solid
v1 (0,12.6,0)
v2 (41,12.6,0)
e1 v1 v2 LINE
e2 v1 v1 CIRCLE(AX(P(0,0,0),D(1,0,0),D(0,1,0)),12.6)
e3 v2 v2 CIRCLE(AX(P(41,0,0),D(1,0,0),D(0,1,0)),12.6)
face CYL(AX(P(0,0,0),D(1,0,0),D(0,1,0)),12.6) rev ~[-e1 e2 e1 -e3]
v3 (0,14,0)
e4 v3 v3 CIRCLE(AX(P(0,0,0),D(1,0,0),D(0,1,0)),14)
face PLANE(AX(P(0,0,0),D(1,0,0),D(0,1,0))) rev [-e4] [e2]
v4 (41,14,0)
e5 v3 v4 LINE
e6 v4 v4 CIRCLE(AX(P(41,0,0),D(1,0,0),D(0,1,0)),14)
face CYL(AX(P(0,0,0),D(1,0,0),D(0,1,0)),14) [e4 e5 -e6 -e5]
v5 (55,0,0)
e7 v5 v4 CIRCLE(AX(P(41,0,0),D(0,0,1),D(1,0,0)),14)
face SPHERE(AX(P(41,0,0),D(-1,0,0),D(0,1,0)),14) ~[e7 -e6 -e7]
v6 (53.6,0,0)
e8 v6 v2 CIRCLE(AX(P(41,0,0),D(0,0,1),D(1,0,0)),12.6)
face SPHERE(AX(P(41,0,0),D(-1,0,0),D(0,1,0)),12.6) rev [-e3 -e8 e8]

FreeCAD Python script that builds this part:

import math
import FreeCAD as App
import Part
import Sketcher

V = App.Vector
Q = App.Units.Quantity

doc = App.newDocument("Part")
params = doc.addObject("Spreadsheet::Sheet", "Params")
for row, (alias, value) in enumerate([
    ("sketch1_radius", "14 mm"),
    ("sketch1_width", "1.4 mm"),
    ("revolution_angle", "360 deg"),
], start=1):
    params.set(f"A{row}", alias)
    params.set(f"B{row}", "=" + value)
    params.setAlias(f"B{row}", alias)

body = doc.addObject("PartDesign::Body", "Body")

# Sketch on XY plane
sketch1 = body.newObject("Sketcher::SketchObject", "Sketch")
sketch1.AttachmentSupport = (doc.getObject("XY_Plane"), [""])
sketch1.MapMode = "FlatFace"
sketch1.addGeometry(Part.LineSegment(V(0, 14, 0), V(0, 12.6, 0)), False)
sketch1.addGeometry(Part.LineSegment(V(0, 12.6, 0), V(41, 12.6, 0)), False)
sketch1.addGeometry(Part.ArcOfCircle(Part.Circle(V(41, 0, 0), V(0, 0, 1), 12.6), math.radians(0), math.radians(90)), False)
sketch1.addGeometry(Part.LineSegment(V(53.6, 0, 0), V(55, 0, 0)), False)
sketch1.addGeometry(Part.ArcOfCircle(Part.Circle(V(41, 0, 0), V(0, 0, 1), 14), math.radians(0), math.radians(90)), False)
sketch1.addGeometry(Part.LineSegment(V(41, 14, 0), V(0, 14, 0)), False)
sketch1.addConstraint(Sketcher.Constraint("Coincident", 0, 2, 1, 1))
sketch1.addConstraint(Sketcher.Constraint("Tangent", 1, 2, 2, 2))
sketch1.addConstraint(Sketcher.Constraint("Coincident", 2, 1, 3, 1))
sketch1.addConstraint(Sketcher.Constraint("Coincident", 3, 2, 4, 1))
sketch1.addConstraint(Sketcher.Constraint("Tangent", 4, 2, 5, 1))
sketch1.addConstraint(Sketcher.Constraint("Coincident", 5, 2, 0, 1))
sketch1.addConstraint(Sketcher.Constraint("Vertical", 0))
sketch1.addConstraint(Sketcher.Constraint("Horizontal", 1))
sketch1.addConstraint(Sketcher.Constraint("Horizontal", 3))
sketch1.addConstraint(Sketcher.Constraint("Horizontal", 5))
sketch1.addConstraint(Sketcher.Constraint("Coincident", 4, 3, 2, 3))
sketch1.addConstraint(Sketcher.Constraint("PointOnObject", 2, 3, -1))
sketch1.addConstraint(Sketcher.Constraint("PointOnObject", 0, 2, -2))
sketch1.addConstraint(Sketcher.Constraint("PointOnObject", 2, 1, -1))
sketch1.addConstraint(Sketcher.Constraint("Radius", 4, Q("14 mm")))
sketch1.addConstraint(Sketcher.Constraint("DistanceX", 3, 1, 3, 2, Q("1.4 mm")))
sketch1.addConstraint(Sketcher.Constraint("DistanceX", -1, 1, 3, 2, Q("55 mm")))
sketch1.setExpression("Constraints[14]", "Params.sketch1_radius")
sketch1.setExpression("Constraints[15]", "Params.sketch1_width")
revolution = body.newObject("PartDesign::Revolution", "Revolution")
revolution.Profile = sketch1
revolution.ReferenceAxis = (sketch1, ["H_Axis"])
revolution.setExpression("Angle", "Params.revolution_angle")

doc.recompute()
